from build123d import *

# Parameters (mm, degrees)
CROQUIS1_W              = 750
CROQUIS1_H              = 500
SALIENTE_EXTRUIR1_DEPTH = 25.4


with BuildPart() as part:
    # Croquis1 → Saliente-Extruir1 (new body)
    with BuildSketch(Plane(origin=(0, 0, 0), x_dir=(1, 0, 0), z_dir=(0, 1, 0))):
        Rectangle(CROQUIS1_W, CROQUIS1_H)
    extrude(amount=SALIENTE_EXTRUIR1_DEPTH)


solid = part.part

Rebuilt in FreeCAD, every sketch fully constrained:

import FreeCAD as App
import Part
import Sketcher
from FreeCAD import Vector

doc = App.newDocument("Part")
body = doc.addObject("PartDesign::Body", "Body")

# Sketch on XZ plane
sketch1 = body.newObject("Sketcher::SketchObject", "Sketch")
sketch1.AttachmentSupport = (doc.getObject("XZ_Plane"), [""])
sketch1.MapMode = "FlatFace"
sketch1.addGeometry([
    Part.LineSegment(Vector(-375, -250, 0), Vector(-375, 250, 0)),
    Part.LineSegment(Vector(-375, 250, 0), Vector(375, 250, 0)),
    Part.LineSegment(Vector(375, 250, 0), Vector(375, -250, 0)),
    Part.LineSegment(Vector(375, -250, 0), Vector(-375, -250, 0)),
], False)
sketch1.addConstraint([
    Sketcher.Constraint("Coincident", 0, 2, 1, 1),
    Sketcher.Constraint("Coincident", 1, 2, 2, 1),
    Sketcher.Constraint("Coincident", 2, 2, 3, 1),
    Sketcher.Constraint("Coincident", 3, 2, 0, 1),
    Sketcher.Constraint("Vertical", 0),
    Sketcher.Constraint("Horizontal", 1),
    Sketcher.Constraint("Vertical", 2),
    Sketcher.Constraint("Horizontal", 3),
    Sketcher.Constraint("Symmetric", 0, 2, 2, 2, -1, 1),
    Sketcher.Constraint("DistanceX", 1, 1, 1, 2, 750.0),
    Sketcher.Constraint("DistanceY", 0, 1, 0, 2, 500.0),
])
pad1 = body.newObject("PartDesign::Pad", "Pad")
pad1.Profile = sketch1
pad1.Length = 25.4
pad1.Reversed = True

doc.recompute()
